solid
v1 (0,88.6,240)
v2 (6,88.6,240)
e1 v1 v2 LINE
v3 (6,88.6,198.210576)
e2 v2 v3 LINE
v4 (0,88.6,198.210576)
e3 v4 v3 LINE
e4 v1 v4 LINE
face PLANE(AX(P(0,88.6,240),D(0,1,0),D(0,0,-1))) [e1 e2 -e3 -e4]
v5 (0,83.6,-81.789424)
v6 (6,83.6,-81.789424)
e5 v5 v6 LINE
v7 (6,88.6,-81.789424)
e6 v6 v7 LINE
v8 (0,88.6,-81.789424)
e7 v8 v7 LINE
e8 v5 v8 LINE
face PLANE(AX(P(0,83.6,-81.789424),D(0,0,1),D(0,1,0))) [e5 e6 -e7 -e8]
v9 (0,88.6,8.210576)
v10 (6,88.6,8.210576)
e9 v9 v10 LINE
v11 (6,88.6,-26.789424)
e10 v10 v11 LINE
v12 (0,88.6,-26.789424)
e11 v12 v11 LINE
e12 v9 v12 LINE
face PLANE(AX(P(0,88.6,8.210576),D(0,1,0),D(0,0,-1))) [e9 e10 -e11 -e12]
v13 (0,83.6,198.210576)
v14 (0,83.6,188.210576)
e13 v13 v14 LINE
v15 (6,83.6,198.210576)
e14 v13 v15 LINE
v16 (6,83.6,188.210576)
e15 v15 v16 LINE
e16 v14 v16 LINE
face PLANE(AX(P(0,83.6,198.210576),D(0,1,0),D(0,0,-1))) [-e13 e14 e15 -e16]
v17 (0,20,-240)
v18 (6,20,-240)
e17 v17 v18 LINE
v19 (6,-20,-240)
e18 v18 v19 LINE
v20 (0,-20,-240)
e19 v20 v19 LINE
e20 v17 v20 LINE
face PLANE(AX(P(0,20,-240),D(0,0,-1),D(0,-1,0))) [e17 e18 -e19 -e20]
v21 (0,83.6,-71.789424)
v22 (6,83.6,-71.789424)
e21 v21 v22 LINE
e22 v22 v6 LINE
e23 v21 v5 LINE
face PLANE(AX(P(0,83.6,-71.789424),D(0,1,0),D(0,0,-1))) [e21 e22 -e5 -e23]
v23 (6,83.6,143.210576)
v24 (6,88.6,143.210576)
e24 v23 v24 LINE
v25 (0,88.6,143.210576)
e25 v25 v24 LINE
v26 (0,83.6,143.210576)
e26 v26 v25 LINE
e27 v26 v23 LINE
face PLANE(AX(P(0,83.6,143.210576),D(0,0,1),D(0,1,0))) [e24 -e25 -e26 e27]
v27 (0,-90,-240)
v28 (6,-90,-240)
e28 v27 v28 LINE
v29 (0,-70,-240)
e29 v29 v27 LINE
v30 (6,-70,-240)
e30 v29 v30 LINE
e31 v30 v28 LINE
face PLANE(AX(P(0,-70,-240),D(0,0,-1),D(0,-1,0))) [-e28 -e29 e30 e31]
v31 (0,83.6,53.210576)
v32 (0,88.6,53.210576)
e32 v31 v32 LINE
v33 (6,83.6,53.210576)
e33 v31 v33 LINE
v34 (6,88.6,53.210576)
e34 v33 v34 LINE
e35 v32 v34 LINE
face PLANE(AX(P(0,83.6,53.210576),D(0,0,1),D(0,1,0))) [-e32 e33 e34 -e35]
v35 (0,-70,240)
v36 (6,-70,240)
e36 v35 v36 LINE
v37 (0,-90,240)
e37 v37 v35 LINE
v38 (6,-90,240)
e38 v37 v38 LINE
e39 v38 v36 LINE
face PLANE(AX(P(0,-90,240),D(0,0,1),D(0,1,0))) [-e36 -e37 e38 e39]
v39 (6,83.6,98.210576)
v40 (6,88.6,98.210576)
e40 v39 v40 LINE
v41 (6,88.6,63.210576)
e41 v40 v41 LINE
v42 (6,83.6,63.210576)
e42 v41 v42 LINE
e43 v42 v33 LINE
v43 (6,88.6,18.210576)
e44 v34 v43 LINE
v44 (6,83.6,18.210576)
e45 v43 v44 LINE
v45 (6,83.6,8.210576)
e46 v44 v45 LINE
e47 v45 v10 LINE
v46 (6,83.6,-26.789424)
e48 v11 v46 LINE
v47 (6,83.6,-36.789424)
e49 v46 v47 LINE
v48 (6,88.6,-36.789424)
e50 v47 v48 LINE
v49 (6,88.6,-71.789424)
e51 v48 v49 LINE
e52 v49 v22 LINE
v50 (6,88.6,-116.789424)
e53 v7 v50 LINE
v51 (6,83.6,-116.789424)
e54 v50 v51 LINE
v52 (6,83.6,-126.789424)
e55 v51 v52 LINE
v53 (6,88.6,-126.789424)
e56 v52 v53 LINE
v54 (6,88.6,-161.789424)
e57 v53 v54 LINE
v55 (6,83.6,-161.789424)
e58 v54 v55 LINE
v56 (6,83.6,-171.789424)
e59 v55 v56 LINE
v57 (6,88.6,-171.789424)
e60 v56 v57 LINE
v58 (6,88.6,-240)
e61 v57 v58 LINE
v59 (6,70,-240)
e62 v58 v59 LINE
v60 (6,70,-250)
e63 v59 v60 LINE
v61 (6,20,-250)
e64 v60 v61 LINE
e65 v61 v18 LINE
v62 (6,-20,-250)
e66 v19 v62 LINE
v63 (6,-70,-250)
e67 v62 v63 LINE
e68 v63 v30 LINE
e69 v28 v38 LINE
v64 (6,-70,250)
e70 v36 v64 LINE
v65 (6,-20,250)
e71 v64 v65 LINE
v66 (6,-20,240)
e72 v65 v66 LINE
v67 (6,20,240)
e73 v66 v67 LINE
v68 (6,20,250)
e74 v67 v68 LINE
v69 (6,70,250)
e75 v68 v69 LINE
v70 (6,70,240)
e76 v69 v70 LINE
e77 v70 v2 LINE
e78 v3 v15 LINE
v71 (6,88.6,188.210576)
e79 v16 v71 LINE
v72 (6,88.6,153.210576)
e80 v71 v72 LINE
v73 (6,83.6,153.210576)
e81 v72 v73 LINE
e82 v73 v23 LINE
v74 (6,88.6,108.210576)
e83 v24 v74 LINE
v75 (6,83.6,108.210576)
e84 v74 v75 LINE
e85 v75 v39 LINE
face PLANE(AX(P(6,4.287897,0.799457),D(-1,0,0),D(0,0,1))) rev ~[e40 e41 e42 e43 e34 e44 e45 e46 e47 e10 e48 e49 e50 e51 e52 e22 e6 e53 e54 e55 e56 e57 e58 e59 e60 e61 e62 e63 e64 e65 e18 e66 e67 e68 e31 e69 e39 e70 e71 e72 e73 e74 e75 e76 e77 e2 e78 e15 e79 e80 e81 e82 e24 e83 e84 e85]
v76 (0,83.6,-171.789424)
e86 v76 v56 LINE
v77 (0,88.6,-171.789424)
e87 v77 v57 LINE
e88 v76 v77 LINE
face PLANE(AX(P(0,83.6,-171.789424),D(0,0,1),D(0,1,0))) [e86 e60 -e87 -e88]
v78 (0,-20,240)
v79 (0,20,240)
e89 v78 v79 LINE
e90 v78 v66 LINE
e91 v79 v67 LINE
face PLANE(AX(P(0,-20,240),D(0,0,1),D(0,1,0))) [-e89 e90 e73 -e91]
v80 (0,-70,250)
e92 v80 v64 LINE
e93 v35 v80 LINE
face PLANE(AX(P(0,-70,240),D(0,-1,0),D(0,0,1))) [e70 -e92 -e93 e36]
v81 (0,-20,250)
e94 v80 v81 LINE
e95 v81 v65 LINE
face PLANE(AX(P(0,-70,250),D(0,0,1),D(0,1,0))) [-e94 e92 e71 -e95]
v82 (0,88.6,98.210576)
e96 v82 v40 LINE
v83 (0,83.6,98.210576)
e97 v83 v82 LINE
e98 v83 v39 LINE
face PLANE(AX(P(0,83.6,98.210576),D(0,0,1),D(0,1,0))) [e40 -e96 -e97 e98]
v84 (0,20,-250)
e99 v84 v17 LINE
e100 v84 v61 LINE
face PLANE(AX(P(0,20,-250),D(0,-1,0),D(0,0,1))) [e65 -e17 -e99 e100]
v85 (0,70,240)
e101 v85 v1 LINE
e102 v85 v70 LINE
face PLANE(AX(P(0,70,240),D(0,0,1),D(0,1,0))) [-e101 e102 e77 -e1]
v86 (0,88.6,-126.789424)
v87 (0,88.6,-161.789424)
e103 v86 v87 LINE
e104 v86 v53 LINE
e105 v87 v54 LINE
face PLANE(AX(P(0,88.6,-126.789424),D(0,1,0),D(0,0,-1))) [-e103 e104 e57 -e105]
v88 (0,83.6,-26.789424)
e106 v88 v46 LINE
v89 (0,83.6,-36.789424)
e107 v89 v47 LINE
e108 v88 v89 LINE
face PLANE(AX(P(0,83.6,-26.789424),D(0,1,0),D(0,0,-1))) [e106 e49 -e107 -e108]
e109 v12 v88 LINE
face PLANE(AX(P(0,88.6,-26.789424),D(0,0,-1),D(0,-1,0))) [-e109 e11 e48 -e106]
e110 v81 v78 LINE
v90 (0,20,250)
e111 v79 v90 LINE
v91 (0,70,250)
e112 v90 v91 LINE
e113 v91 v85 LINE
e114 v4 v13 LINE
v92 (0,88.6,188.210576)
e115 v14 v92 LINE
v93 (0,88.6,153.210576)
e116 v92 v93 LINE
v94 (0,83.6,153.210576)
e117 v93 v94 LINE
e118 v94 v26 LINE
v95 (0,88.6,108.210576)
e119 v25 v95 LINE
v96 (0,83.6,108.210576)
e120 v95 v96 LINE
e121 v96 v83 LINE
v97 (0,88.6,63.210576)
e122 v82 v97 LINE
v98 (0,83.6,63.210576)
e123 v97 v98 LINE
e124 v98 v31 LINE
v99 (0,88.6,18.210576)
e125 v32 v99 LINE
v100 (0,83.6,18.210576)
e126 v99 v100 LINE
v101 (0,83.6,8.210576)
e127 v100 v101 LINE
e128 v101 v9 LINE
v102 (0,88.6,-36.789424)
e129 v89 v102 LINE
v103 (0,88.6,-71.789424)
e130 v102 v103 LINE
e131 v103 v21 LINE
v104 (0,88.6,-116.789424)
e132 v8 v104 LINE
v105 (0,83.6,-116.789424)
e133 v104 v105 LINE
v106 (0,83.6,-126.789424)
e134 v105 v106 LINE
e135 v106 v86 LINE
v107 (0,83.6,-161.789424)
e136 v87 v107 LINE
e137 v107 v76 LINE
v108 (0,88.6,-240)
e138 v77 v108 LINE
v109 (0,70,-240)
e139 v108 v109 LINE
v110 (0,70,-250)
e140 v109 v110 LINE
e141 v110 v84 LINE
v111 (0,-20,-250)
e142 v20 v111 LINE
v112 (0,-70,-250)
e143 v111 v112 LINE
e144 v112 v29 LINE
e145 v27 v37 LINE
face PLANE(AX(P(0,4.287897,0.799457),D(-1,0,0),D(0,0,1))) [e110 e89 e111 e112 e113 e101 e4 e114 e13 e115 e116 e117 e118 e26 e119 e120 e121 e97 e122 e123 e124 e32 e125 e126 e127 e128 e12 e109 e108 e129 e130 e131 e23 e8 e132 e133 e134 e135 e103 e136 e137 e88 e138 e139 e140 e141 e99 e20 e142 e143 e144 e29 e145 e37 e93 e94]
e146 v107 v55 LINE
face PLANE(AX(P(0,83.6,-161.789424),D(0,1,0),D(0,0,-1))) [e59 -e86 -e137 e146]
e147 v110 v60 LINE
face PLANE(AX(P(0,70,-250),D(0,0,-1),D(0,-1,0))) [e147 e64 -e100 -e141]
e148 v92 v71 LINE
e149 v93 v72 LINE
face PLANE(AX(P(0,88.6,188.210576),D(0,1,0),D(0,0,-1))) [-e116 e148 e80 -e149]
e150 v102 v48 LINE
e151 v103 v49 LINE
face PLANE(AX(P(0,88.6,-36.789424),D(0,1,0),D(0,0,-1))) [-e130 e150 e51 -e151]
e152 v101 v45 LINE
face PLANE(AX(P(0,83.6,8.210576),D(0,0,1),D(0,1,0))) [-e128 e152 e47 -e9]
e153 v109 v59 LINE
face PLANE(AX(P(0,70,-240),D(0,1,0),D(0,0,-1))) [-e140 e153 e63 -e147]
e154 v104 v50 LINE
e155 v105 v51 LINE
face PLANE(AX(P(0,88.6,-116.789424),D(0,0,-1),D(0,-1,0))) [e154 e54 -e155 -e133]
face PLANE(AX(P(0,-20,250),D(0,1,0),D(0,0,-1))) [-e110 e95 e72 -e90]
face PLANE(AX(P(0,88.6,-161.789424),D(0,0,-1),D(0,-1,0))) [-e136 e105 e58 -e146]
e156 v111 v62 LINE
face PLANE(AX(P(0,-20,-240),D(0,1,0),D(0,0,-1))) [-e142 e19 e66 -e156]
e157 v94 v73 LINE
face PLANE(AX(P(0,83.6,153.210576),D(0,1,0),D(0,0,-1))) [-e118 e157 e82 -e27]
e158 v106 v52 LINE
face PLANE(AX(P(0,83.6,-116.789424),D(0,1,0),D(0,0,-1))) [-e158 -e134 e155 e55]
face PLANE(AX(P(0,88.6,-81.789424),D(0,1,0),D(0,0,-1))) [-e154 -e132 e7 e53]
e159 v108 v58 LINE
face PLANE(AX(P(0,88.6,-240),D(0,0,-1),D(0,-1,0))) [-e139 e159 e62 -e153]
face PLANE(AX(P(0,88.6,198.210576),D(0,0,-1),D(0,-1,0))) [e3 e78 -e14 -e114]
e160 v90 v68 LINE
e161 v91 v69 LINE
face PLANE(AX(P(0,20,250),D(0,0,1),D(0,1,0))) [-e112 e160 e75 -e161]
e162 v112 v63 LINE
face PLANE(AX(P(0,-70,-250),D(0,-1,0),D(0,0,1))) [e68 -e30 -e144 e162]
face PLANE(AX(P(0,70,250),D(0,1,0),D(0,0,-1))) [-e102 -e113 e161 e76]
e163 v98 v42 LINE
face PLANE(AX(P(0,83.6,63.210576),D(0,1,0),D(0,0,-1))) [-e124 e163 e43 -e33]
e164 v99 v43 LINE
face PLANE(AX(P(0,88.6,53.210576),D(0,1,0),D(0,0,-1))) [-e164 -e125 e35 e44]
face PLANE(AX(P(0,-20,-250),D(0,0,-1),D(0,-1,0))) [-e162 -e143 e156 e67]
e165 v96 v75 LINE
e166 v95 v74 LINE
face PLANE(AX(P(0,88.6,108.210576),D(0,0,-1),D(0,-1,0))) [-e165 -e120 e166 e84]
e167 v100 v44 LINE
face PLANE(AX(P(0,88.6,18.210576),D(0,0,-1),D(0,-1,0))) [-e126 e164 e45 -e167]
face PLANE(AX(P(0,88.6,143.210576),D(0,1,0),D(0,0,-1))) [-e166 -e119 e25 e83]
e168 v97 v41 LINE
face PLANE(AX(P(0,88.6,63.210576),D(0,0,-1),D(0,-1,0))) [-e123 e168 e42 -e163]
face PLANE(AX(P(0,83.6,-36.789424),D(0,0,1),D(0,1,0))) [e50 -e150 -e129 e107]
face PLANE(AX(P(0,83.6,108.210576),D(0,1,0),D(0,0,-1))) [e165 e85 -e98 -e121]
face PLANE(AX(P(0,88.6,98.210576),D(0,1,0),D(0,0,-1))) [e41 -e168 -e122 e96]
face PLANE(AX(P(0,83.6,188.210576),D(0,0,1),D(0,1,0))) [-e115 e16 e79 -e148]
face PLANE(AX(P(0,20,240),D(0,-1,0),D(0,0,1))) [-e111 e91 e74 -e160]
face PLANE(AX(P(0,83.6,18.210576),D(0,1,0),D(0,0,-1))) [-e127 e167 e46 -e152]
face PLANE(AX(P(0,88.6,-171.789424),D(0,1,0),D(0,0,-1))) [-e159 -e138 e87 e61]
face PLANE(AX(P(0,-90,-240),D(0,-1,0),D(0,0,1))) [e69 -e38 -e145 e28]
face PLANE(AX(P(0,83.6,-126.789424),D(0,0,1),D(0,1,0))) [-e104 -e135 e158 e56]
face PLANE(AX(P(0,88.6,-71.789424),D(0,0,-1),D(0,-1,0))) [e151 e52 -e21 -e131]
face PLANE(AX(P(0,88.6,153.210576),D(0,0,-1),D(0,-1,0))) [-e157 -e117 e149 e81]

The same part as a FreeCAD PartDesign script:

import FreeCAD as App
import Part
import Sketcher
from FreeCAD import Vector

doc = App.newDocument("Part")
params = doc.addObject("Spreadsheet::Sheet", "Params")
for row, (alias, value) in enumerate([
    ("sketch1_width", "20 mm"),
    ("sketch1_width2", "50 mm"),
    ("sketch1_width3", "40 mm"),
    ("sketch1_width4", "5 mm"),
    ("sketch1_height", "480 mm"),
    ("pad1_length", "6 mm"),
], start=1):
    params.set(f"A{row}", alias)
    params.set(f"B{row}", "=" + value)
    params.setAlias(f"B{row}", alias)

body = doc.addObject("PartDesign::Body", "Body")

# Sketch on YZ plane
sketch1 = body.newObject("Sketcher::SketchObject", "Sketch")
sketch1.AttachmentSupport = (doc.getObject("YZ_Plane"), [""])
sketch1.MapMode = "FlatFace"
sketch1.addGeometry([
    Part.LineSegment(Vector(-90, 240, 0), Vector(-90, -240, 0)),  # 0
    Part.LineSegment(Vector(-90, -240, 0), Vector(-70, -240, 0)),  # 1
    Part.LineSegment(Vector(-70, -240, 0), Vector(-70, -250, 0)),  # 2
    Part.LineSegment(Vector(-70, -250, 0), Vector(-20, -250, 0)),  # 3
    Part.LineSegment(Vector(-20, -250, 0), Vector(-20, -240, 0)),  # 4
    Part.LineSegment(Vector(-20, -240, 0), Vector(20, -240, 0)),  # 5
    Part.LineSegment(Vector(20, -240, 0), Vector(20, -250, 0)),  # 6
    Part.LineSegment(Vector(20, -250, 0), Vector(70, -250, 0)),  # 7
    Part.LineSegment(Vector(70, -250, 0), Vector(70, -240, 0)),  # 8
    Part.LineSegment(Vector(70, -240, 0), Vector(88.6, -240, 0)),  # 9
    Part.LineSegment(Vector(88.6, -240, 0), Vector(88.6, -171.789424, 0)),  # 10
    Part.LineSegment(Vector(88.6, -171.789424, 0), Vector(83.6, -171.789424, 0)),  # 11
    Part.LineSegment(Vector(83.6, -171.789424, 0), Vector(83.6, -161.789424, 0)),  # 12
    Part.LineSegment(Vector(83.6, -161.789424, 0), Vector(88.6, -161.789424, 0)),  # 13
    Part.LineSegment(Vector(88.6, -161.789424, 0), Vector(88.6, -126.789424, 0)),  # 14
    Part.LineSegment(Vector(88.6, -126.789424, 0), Vector(83.6, -126.789424, 0)),  # 15
    Part.LineSegment(Vector(83.6, -126.789424, 0), Vector(83.6, -116.789424, 0)),  # 16
    Part.LineSegment(Vector(83.6, -116.789424, 0), Vector(88.6, -116.789424, 0)),  # 17
    Part.LineSegment(Vector(88.6, -116.789424, 0), Vector(88.6, -81.789424, 0)),  # 18
    Part.LineSegment(Vector(88.6, -81.789424, 0), Vector(83.6, -81.789424, 0)),  # 19
    Part.LineSegment(Vector(83.6, -81.789424, 0), Vector(83.6, -71.789424, 0)),  # 20
    Part.LineSegment(Vector(83.6, -71.789424, 0), Vector(88.6, -71.789424, 0)),  # 21
    Part.LineSegment(Vector(88.6, -71.789424, 0), Vector(88.6, -36.789424, 0)),  # 22
    Part.LineSegment(Vector(88.6, -36.789424, 0), Vector(83.6, -36.789424, 0)),  # 23
    Part.LineSegment(Vector(83.6, -36.789424, 0), Vector(83.6, -26.789424, 0)),  # 24
    Part.LineSegment(Vector(83.6, -26.789424, 0), Vector(88.6, -26.789424, 0)),  # 25
    Part.LineSegment(Vector(88.6, -26.789424, 0), Vector(88.6, 8.210576, 0)),  # 26
    Part.LineSegment(Vector(88.6, 8.210576, 0), Vector(83.6, 8.210576, 0)),  # 27
    Part.LineSegment(Vector(83.6, 8.210576, 0), Vector(83.6, 18.210576, 0)),  # 28
    Part.LineSegment(Vector(83.6, 18.210576, 0), Vector(88.6, 18.210576, 0)),  # 29
    Part.LineSegment(Vector(88.6, 18.210576, 0), Vector(88.6, 53.210576, 0)),  # 30
    Part.LineSegment(Vector(88.6, 53.210576, 0), Vector(83.6, 53.210576, 0)),  # 31
    Part.LineSegment(Vector(83.6, 53.210576, 0), Vector(83.6, 63.210576, 0)),  # 32
    Part.LineSegment(Vector(83.6, 63.210576, 0), Vector(88.6, 63.210576, 0)),  # 33
    Part.LineSegment(Vector(88.6, 63.210576, 0), Vector(88.6, 98.210576, 0)),  # 34
    Part.LineSegment(Vector(88.6, 98.210576, 0), Vector(83.6, 98.210576, 0)),  # 35
    Part.LineSegment(Vector(83.6, 98.210576, 0), Vector(83.6, 108.210576, 0)),  # 36
    Part.LineSegment(Vector(83.6, 108.210576, 0), Vector(88.6, 108.210576, 0)),  # 37
    Part.LineSegment(Vector(88.6, 108.210576, 0), Vector(88.6, 143.210576, 0)),  # 38
    Part.LineSegment(Vector(88.6, 143.210576, 0), Vector(83.6, 143.210576, 0)),  # 39
    Part.LineSegment(Vector(83.6, 143.210576, 0), Vector(83.6, 153.210576, 0)),  # 40
    Part.LineSegment(Vector(83.6, 153.210576, 0), Vector(88.6, 153.210576, 0)),  # 41
    Part.LineSegment(Vector(88.6, 153.210576, 0), Vector(88.6, 188.210576, 0)),  # 42
    Part.LineSegment(Vector(88.6, 188.210576, 0), Vector(83.6, 188.210576, 0)),  # 43
    Part.LineSegment(Vector(83.6, 188.210576, 0), Vector(83.6, 198.210576, 0)),  # 44
    Part.LineSegment(Vector(83.6, 198.210576, 0), Vector(88.6, 198.210576, 0)),  # 45
    Part.LineSegment(Vector(88.6, 198.210576, 0), Vector(88.6, 240, 0)),  # 46
    Part.LineSegment(Vector(88.6, 240, 0), Vector(70, 240, 0)),  # 47
    Part.LineSegment(Vector(70, 240, 0), Vector(70, 250, 0)),  # 48
    Part.LineSegment(Vector(70, 250, 0), Vector(20, 250, 0)),  # 49
    Part.LineSegment(Vector(20, 250, 0), Vector(20, 240, 0)),  # 50
    Part.LineSegment(Vector(20, 240, 0), Vector(-20, 240, 0)),  # 51
    Part.LineSegment(Vector(-20, 240, 0), Vector(-20, 250, 0)),  # 52
    Part.LineSegment(Vector(-20, 250, 0), Vector(-70, 250, 0)),  # 53
    Part.LineSegment(Vector(-70, 250, 0), Vector(-70, 240, 0)),  # 54
    Part.LineSegment(Vector(-70, 240, 0), Vector(-90, 240, 0)),  # 55
], False)
sketch1.addConstraint([
    Sketcher.Constraint("Coincident", 0, 2, 1, 1),
    Sketcher.Constraint("Coincident", 1, 2, 2, 1),
    Sketcher.Constraint("Coincident", 2, 2, 3, 1),
    Sketcher.Constraint("Coincident", 3, 2, 4, 1),
    Sketcher.Constraint("Coincident", 4, 2, 5, 1),
    Sketcher.Constraint("Coincident", 5, 2, 6, 1),
    Sketcher.Constraint("Coincident", 6, 2, 7, 1),
    Sketcher.Constraint("Coincident", 7, 2, 8, 1),
    Sketcher.Constraint("Coincident", 8, 2, 9, 1),
    Sketcher.Constraint("Coincident", 9, 2, 10, 1),
    Sketcher.Constraint("Coincident", 10, 2, 11, 1),
    Sketcher.Constraint("Coincident", 11, 2, 12, 1),
    Sketcher.Constraint("Coincident", 12, 2, 13, 1),
    Sketcher.Constraint("Coincident", 13, 2, 14, 1),
    Sketcher.Constraint("Coincident", 14, 2, 15, 1),
    Sketcher.Constraint("Coincident", 15, 2, 16, 1),
    Sketcher.Constraint("Coincident", 16, 2, 17, 1),
    Sketcher.Constraint("Coincident", 17, 2, 18, 1),
    Sketcher.Constraint("Coincident", 18, 2, 19, 1),
    Sketcher.Constraint("Coincident", 19, 2, 20, 1),
    Sketcher.Constraint("Coincident", 20, 2, 21, 1),
    Sketcher.Constraint("Coincident", 21, 2, 22, 1),
    Sketcher.Constraint("Coincident", 22, 2, 23, 1),
    Sketcher.Constraint("Coincident", 23, 2, 24, 1),
    Sketcher.Constraint("Coincident", 24, 2, 25, 1),
    Sketcher.Constraint("Coincident", 25, 2, 26, 1),
    Sketcher.Constraint("Coincident", 26, 2, 27, 1),
    Sketcher.Constraint("Coincident", 27, 2, 28, 1),
    Sketcher.Constraint("Coincident", 28, 2, 29, 1),
    Sketcher.Constraint("Coincident", 29, 2, 30, 1),
    Sketcher.Constraint("Coincident", 30, 2, 31, 1),
    Sketcher.Constraint("Coincident", 31, 2, 32, 1),
    Sketcher.Constraint("Coincident", 32, 2, 33, 1),
    Sketcher.Constraint("Coincident", 33, 2, 34, 1),
    Sketcher.Constraint("Coincident", 34, 2, 35, 1),
    Sketcher.Constraint("Coincident", 35, 2, 36, 1),
    Sketcher.Constraint("Coincident", 36, 2, 37, 1),
    Sketcher.Constraint("Coincident", 37, 2, 38, 1),
    Sketcher.Constraint("Coincident", 38, 2, 39, 1),
    Sketcher.Constraint("Coincident", 39, 2, 40, 1),
    Sketcher.Constraint("Coincident", 40, 2, 41, 1),
    Sketcher.Constraint("Coincident", 41, 2, 42, 1),
    Sketcher.Constraint("Coincident", 42, 2, 43, 1),
    Sketcher.Constraint("Coincident", 43, 2, 44, 1),
    Sketcher.Constraint("Coincident", 44, 2, 45, 1),
    Sketcher.Constraint("Coincident", 45, 2, 46, 1),
    Sketcher.Constraint("Coincident", 46, 2, 47, 1),
    Sketcher.Constraint("Coincident", 47, 2, 48, 1),
    Sketcher.Constraint("Coincident", 48, 2, 49, 1),
    Sketcher.Constraint("Coincident", 49, 2, 50, 1),
    Sketcher.Constraint("Coincident", 50, 2, 51, 1),
    Sketcher.Constraint("Coincident", 51, 2, 52, 1),
    Sketcher.Constraint("Coincident", 52, 2, 53, 1),
    Sketcher.Constraint("Coincident", 53, 2, 54, 1),
    Sketcher.Constraint("Coincident", 54, 2, 55, 1),
    Sketcher.Constraint("Coincident", 55, 2, 0, 1),
    Sketcher.Constraint("Vertical", 0),
    Sketcher.Constraint("Horizontal", 1),
    Sketcher.Constraint("Vertical", 2),
    Sketcher.Constraint("Horizontal", 3),
    Sketcher.Constraint("Vertical", 4),
    Sketcher.Constraint("Horizontal", 5),
    Sketcher.Constraint("Vertical", 6),
    Sketcher.Constraint("Horizontal", 7),
    Sketcher.Constraint("Vertical", 8),
    Sketcher.Constraint("Horizontal", 9),
    Sketcher.Constraint("Vertical", 10),
    Sketcher.Constraint("Horizontal", 11),
    Sketcher.Constraint("Vertical", 12),
    Sketcher.Constraint("Horizontal", 13),
    Sketcher.Constraint("Vertical", 14),
    Sketcher.Constraint("Horizontal", 15),
    Sketcher.Constraint("Vertical", 16),
    Sketcher.Constraint("Horizontal", 17),
    Sketcher.Constraint("Vertical", 18),
    Sketcher.Constraint("Horizontal", 19),
    Sketcher.Constraint("Vertical", 20),
    Sketcher.Constraint("Horizontal", 21),
    Sketcher.Constraint("Vertical", 22),
    Sketcher.Constraint("Horizontal", 23),
    Sketcher.Constraint("Vertical", 24),
    Sketcher.Constraint("Horizontal", 25),
    Sketcher.Constraint("Vertical", 26),
    Sketcher.Constraint("Horizontal", 27),
    Sketcher.Constraint("Vertical", 28),
    Sketcher.Constraint("Horizontal", 29),
    Sketcher.Constraint("Vertical", 30),
    Sketcher.Constraint("Horizontal", 31),
    Sketcher.Constraint("Vertical", 32),
    Sketcher.Constraint("Horizontal", 33),
    Sketcher.Constraint("Vertical", 34),
    Sketcher.Constraint("Horizontal", 35),
    Sketcher.Constraint("Vertical", 36),
    Sketcher.Constraint("Horizontal", 37),
    Sketcher.Constraint("Vertical", 38),
    Sketcher.Constraint("Horizontal", 39),
    Sketcher.Constraint("Vertical", 40),
    Sketcher.Constraint("Horizontal", 41),
    Sketcher.Constraint("Vertical", 42),
    Sketcher.Constraint("Horizontal", 43),
    Sketcher.Constraint("Vertical", 44),
    Sketcher.Constraint("Horizontal", 45),
    Sketcher.Constraint("Vertical", 46),
    Sketcher.Constraint("Horizontal", 47),
    Sketcher.Constraint("Vertical", 48),
    Sketcher.Constraint("Horizontal", 49),
    Sketcher.Constraint("Vertical", 50),
    Sketcher.Constraint("Horizontal", 51),
    Sketcher.Constraint("Vertical", 52),
    Sketcher.Constraint("Horizontal", 53),
    Sketcher.Constraint("Vertical", 54),
    Sketcher.Constraint("Horizontal", 55),
    Sketcher.Constraint("Symmetric", 1, 2, 47, 2, -1, 1),
    Sketcher.Constraint("Symmetric", 3, 2, 49, 2, -1, 1),
    Sketcher.Constraint("Symmetric", 5, 2, 51, 2, -1, 1),
    Sketcher.Constraint("Symmetric", 7, 2, 53, 2, -1, 1),
    Sketcher.Constraint("Symmetric", 3, 2, 6, 2, -2),
    Sketcher.Constraint("Symmetric", 1, 2, 8, 2, -2),
    Sketcher.Constraint("Horizontal", 1, 2, 4, 2),
    Sketcher.Constraint("Horizontal", 51, 2, 54, 2),
    Sketcher.Constraint("Vertical", 10, 2, 13, 2),
    Sketcher.Constraint("Vertical", 12, 2, 15, 2),
    Sketcher.Constraint("Vertical", 14, 2, 17, 2),
    Sketcher.Constraint("Vertical", 16, 2, 19, 2),
    Sketcher.Constraint("Vertical", 18, 2, 21, 2),
    Sketcher.Constraint("Vertical", 20, 2, 23, 2),
    Sketcher.Constraint("Vertical", 22, 2, 25, 2),
    Sketcher.Constraint("Vertical", 24, 2, 27, 2),
    Sketcher.Constraint("Vertical", 26, 2, 29, 2),
    Sketcher.Constraint("Vertical", 28, 2, 31, 2),
    Sketcher.Constraint("Vertical", 30, 2, 33, 2),
    Sketcher.Constraint("Vertical", 32, 2, 35, 2),
    Sketcher.Constraint("Vertical", 34, 2, 37, 2),
    Sketcher.Constraint("Vertical", 36, 2, 39, 2),
    Sketcher.Constraint("Vertical", 38, 2, 41, 2),
    Sketcher.Constraint("Vertical", 40, 2, 43, 2),
    Sketcher.Constraint("Vertical", 42, 2, 45, 2),
    Sketcher.Constraint("Equal", 8, 12),
    Sketcher.Constraint("Equal", 12, 16),
    Sketcher.Constraint("Equal", 14, 18),
    Sketcher.Constraint("Equal", 16, 20),
    Sketcher.Constraint("Equal", 18, 22),
    Sketcher.Constraint("Equal", 20, 24),
    Sketcher.Constraint("Equal", 22, 26),
    Sketcher.Constraint("Equal", 24, 28),
    Sketcher.Constraint("Equal", 26, 30),
    Sketcher.Constraint("Equal", 28, 32),
    Sketcher.Constraint("Equal", 30, 34),
    Sketcher.Constraint("Equal", 32, 36),
    Sketcher.Constraint("Equal", 34, 38),
    Sketcher.Constraint("Equal", 36, 40),
    Sketcher.Constraint("Equal", 38, 42),
    Sketcher.Constraint("Equal", 40, 44),
    Sketcher.Constraint("DistanceX", 1, 1, 1, 2, 20.0),
    Sketcher.Constraint("DistanceX", 3, 1, 3, 2, 50.0),
    Sketcher.Constraint("DistanceX", 5, 1, 5, 2, 40.0),
    Sketcher.Constraint("DistanceX", 11, 2, 11, 1, 5.0),
    Sketcher.Constraint("DistanceY", 0, 2, 0, 1, 480.0),
    Sketcher.Constraint("DistanceY", 2, 2, 2, 1, 10.0),
    Sketcher.Constraint("DistanceY", 14, 1, 14, 2, 35.0),
    Sketcher.Constraint("DistanceX", 9, 1, 9, 2, 18.6),
    Sketcher.Constraint("DistanceY", 10, 1, 10, 2, 68.210576),
])
sketch1.setExpression("Constraints[153]", "Params.sketch1_width")
sketch1.setExpression("Constraints[154]", "Params.sketch1_width2")
sketch1.setExpression("Constraints[155]", "Params.sketch1_width3")
sketch1.setExpression("Constraints[156]", "Params.sketch1_width4")
sketch1.setExpression("Constraints[157]", "Params.sketch1_height")
pad1 = body.newObject("PartDesign::Pad", "Pad")
pad1.Profile = sketch1
pad1.setExpression("Length", "Params.pad1_length")

doc.recompute()
